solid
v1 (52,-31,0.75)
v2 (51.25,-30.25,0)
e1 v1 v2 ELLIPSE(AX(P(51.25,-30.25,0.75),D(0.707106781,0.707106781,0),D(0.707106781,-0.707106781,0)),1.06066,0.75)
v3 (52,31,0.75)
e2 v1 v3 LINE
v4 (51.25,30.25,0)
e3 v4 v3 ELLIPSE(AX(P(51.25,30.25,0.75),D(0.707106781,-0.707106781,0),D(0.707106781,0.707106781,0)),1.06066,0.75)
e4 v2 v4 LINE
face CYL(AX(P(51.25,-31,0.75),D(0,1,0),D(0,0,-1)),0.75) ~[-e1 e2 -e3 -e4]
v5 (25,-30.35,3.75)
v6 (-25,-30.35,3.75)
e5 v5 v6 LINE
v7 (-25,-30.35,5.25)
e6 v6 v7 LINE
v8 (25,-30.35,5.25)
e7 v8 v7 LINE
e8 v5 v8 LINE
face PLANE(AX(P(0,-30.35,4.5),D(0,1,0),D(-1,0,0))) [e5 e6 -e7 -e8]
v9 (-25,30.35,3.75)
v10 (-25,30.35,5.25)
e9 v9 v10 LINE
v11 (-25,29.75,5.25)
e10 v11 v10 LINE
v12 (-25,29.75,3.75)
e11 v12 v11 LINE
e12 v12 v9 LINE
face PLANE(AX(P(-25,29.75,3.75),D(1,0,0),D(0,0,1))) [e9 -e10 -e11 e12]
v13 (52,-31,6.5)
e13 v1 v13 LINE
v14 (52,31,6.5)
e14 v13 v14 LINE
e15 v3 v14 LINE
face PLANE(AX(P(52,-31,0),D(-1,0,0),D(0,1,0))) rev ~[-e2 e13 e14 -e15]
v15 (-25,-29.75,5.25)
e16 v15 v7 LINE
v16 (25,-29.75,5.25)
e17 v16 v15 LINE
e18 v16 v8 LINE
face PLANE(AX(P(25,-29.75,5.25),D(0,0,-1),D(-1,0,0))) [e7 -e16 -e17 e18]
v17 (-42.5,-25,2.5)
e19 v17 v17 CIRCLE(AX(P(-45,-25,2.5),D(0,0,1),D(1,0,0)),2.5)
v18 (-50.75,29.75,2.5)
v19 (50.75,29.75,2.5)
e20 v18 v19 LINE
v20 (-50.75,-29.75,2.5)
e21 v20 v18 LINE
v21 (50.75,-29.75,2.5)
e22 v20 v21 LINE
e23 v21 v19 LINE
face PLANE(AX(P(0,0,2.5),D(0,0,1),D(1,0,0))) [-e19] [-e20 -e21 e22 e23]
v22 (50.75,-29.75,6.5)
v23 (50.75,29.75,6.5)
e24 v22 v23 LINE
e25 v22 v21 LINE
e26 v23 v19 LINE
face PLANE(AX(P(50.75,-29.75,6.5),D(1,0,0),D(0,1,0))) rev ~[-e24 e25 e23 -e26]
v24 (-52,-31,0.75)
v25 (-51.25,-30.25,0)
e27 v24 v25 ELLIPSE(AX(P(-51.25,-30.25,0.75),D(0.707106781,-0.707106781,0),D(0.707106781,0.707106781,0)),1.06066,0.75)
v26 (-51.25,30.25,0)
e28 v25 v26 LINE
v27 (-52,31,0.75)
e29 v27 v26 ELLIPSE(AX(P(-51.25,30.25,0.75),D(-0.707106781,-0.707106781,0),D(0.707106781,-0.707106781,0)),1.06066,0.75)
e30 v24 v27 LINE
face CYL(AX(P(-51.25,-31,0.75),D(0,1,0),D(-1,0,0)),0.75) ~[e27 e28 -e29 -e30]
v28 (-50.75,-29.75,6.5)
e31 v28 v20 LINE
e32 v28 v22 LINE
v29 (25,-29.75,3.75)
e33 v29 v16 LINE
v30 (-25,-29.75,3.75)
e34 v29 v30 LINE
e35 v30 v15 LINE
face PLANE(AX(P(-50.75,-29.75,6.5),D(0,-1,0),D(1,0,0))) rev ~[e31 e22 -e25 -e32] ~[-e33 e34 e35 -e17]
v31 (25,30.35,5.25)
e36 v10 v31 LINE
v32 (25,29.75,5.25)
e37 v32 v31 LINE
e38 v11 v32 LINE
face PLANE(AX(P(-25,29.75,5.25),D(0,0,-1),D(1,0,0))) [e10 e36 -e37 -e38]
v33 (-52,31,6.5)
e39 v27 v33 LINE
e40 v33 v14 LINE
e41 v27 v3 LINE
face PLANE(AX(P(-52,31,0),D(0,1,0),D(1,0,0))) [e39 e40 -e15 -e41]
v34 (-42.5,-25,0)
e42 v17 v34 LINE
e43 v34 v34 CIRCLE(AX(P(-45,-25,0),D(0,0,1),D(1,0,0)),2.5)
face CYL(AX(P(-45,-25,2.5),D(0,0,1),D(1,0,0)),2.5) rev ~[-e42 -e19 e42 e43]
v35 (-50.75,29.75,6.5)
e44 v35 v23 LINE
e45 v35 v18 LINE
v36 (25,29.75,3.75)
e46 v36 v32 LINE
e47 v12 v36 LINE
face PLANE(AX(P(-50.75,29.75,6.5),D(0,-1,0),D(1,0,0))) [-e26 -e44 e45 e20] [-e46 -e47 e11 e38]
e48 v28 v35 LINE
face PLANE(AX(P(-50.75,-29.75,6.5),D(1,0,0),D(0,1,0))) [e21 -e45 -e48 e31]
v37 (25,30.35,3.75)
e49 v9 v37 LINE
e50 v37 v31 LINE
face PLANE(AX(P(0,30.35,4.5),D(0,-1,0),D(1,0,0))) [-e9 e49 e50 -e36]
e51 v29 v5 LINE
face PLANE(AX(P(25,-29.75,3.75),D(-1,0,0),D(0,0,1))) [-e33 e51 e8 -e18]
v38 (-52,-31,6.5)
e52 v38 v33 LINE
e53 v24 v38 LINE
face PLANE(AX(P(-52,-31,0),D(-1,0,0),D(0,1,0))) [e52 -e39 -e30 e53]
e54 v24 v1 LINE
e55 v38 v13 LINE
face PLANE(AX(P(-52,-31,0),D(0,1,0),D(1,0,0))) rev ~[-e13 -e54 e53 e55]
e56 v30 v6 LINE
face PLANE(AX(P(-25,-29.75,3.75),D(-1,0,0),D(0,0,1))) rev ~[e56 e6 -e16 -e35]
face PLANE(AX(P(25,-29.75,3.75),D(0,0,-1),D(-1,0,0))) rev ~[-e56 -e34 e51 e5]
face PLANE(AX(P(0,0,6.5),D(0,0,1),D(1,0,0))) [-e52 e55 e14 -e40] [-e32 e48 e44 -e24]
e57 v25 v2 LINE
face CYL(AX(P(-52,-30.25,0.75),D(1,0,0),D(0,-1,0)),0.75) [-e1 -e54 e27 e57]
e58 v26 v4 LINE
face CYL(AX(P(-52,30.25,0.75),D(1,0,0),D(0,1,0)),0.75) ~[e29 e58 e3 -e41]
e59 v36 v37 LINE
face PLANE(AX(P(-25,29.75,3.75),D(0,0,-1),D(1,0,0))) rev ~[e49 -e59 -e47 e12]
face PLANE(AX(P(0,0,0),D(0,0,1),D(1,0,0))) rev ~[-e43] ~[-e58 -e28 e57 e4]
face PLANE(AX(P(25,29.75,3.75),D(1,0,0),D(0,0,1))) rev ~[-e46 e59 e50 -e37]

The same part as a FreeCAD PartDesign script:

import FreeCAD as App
import Part
import Sketcher


def edges_at(feature, points):
    """Names of the edges that pass closest to the given points."""
    edges = feature.Shape.Edges
    near = lambda p: min(range(len(edges)), key=lambda i: edges[i].distToShape(Part.Vertex(*p))[0])
    return sorted({f"Edge{near(p) + 1}" for p in points})


def add_polygon(sketch, points):
    """Adds a closed chain of lines whose ends are joined by coincident constraints."""
    first, n = sketch.GeometryCount, len(points)
    for a, b in zip(points, points[1:] + points[:1]):
        sketch.addGeometry(Part.LineSegment(App.Vector(*a, 0), App.Vector(*b, 0)), False)
    for i in range(n):
        sketch.addConstraint(Sketcher.Constraint("Coincident", first + i, 2, first + (i + 1) % n, 1))

doc = App.newDocument("Part")
body = doc.addObject("PartDesign::Body", "Body")

# Sketch on XY plane
sketch1 = body.newObject("Sketcher::SketchObject", "Sketch")
sketch1.AttachmentSupport = (doc.getObject("XY_Plane"), [""])
sketch1.MapMode = "FlatFace"
add_polygon(sketch1, [(-52, 31), (-52, -31), (52, -31), (52, 31)])  # lines 0-3
sketch1.addConstraint([
    Sketcher.Constraint("Vertical", 0),
    Sketcher.Constraint("Horizontal", 1),
    Sketcher.Constraint("Vertical", 2),
    Sketcher.Constraint("Horizontal", 3),
    Sketcher.Constraint("Symmetric", 0, 2, 2, 2, -1, 1),
    Sketcher.Constraint("DistanceX", 1, 1, 1, 2, 104.0),
    Sketcher.Constraint("DistanceY", 0, 2, 0, 1, 62.0),
])
pad1 = body.newObject("PartDesign::Pad", "Pad")
pad1.Profile = sketch1
pad1.Length = 6.5

# Sketch on XY plane
sketch2 = body.newObject("Sketcher::SketchObject", "Sketch001")
sketch2.AttachmentSupport = (doc.getObject("XY_Plane"), [""])
sketch2.MapMode = "FlatFace"
sketch2.AttachmentOffset = App.Placement(App.Vector(0, 0, 6.5), App.Rotation())
add_polygon(sketch2, [(-50.75, 29.75), (-50.75, -29.75), (50.75, -29.75), (50.75, 29.75)])  # lines 0-3
sketch2.addConstraint([
    Sketcher.Constraint("Vertical", 0),
    Sketcher.Constraint("Horizontal", 1),
    Sketcher.Constraint("Vertical", 2),
    Sketcher.Constraint("Horizontal", 3),
    Sketcher.Constraint("Symmetric", 0, 2, 2, 2, -1, 1),
    Sketcher.Constraint("DistanceX", 1, 1, 1, 2, 101.5),
    Sketcher.Constraint("DistanceY", 0, 2, 0, 1, 59.5),
])
pocket1 = body.newObject("PartDesign::Pocket", "Pocket")
pocket1.Profile = sketch2
pocket1.Length = 4

# Sketch on XZ plane
sketch3 = body.newObject("Sketcher::SketchObject", "Sketch002")
sketch3.AttachmentSupport = (doc.getObject("XZ_Plane"), [""])
sketch3.MapMode = "FlatFace"
sketch3.AttachmentOffset = App.Placement(App.Vector(0, 0, -29.75), App.Rotation())
add_polygon(sketch3, [(-25, 5.25), (-25, 3.75), (25, 3.75), (25, 5.25)])  # lines 0-3
sketch3.addConstraint([
    Sketcher.Constraint("Vertical", 0),
    Sketcher.Constraint("Horizontal", 1),
    Sketcher.Constraint("Vertical", 2),
    Sketcher.Constraint("Horizontal", 3),
    Sketcher.Constraint("DistanceX", 1, 1, 1, 2, 50.0),
    Sketcher.Constraint("DistanceY", 0, 2, 0, 1, 1.5),
    Sketcher.Constraint("DistanceX", 0, 2, -1, 1, 25.0),
    Sketcher.Constraint("DistanceY", -1, 1, 0, 2, 3.75),
])
pocket2 = body.newObject("PartDesign::Pocket", "Pocket001")
pocket2.Profile = sketch3
pocket2.Length = 0.6

# Sketch on XZ plane
sketch4 = body.newObject("Sketcher::SketchObject", "Sketch003")
sketch4.AttachmentSupport = (doc.getObject("XZ_Plane"), [""])
sketch4.MapMode = "FlatFace"
sketch4.AttachmentOffset = App.Placement(App.Vector(0, 0, 29.75), App.Rotation())
add_polygon(sketch4, [(25, 5.25), (25, 3.75), (-25, 3.75), (-25, 5.25)])  # lines 0-3
sketch4.addConstraint([
    Sketcher.Constraint("Vertical", 0),
    Sketcher.Constraint("Horizontal", 1),
    Sketcher.Constraint("Vertical", 2),
    Sketcher.Constraint("Horizontal", 3),
    Sketcher.Constraint("DistanceX", 1, 2, 1, 1, 50.0),
    Sketcher.Constraint("DistanceY", 0, 2, 0, 1, 1.5),
    Sketcher.Constraint("DistanceX", -1, 1, 0, 2, 25.0),
    Sketcher.Constraint("DistanceY", -1, 1, 0, 2, 3.75),
])
pocket3 = body.newObject("PartDesign::Pocket", "Pocket002")
pocket3.Profile = sketch4
pocket3.Length = 0.6
pocket3.Reversed = True
doc.recompute()

fillet = body.newObject("PartDesign::Fillet", "Fillet")
fillet.Base = (pocket3, edges_at(pocket3, [
    (0, -31, 0),
    (52, 0, 0),
    (0, 31, 0),
    (-52, 0, 0),
]))
fillet.Radius = 0.75

# Sketch on XY plane
sketch5 = body.newObject("Sketcher::SketchObject", "Sketch004")
sketch5.AttachmentSupport = (doc.getObject("XY_Plane"), [""])
sketch5.MapMode = "FlatFace"
sketch5.AttachmentOffset = App.Placement(App.Vector(0, 0, 2.5), App.Rotation())
sketch5.addGeometry(Part.Circle(App.Vector(-45, -25, 0), App.Vector(0, 0, 1), 2.5), False)
sketch5.addConstraint([
    Sketcher.Constraint("Diameter", 0, 5.0),
    Sketcher.Constraint("DistanceX", 0, 3, -1, 1, 45.0),
    Sketcher.Constraint("DistanceY", 0, 3, -1, 1, 25.0),
])
pocket4 = body.newObject("PartDesign::Pocket", "Pocket003")
pocket4.Profile = sketch5
pocket4.Length = 3

doc.recompute()
